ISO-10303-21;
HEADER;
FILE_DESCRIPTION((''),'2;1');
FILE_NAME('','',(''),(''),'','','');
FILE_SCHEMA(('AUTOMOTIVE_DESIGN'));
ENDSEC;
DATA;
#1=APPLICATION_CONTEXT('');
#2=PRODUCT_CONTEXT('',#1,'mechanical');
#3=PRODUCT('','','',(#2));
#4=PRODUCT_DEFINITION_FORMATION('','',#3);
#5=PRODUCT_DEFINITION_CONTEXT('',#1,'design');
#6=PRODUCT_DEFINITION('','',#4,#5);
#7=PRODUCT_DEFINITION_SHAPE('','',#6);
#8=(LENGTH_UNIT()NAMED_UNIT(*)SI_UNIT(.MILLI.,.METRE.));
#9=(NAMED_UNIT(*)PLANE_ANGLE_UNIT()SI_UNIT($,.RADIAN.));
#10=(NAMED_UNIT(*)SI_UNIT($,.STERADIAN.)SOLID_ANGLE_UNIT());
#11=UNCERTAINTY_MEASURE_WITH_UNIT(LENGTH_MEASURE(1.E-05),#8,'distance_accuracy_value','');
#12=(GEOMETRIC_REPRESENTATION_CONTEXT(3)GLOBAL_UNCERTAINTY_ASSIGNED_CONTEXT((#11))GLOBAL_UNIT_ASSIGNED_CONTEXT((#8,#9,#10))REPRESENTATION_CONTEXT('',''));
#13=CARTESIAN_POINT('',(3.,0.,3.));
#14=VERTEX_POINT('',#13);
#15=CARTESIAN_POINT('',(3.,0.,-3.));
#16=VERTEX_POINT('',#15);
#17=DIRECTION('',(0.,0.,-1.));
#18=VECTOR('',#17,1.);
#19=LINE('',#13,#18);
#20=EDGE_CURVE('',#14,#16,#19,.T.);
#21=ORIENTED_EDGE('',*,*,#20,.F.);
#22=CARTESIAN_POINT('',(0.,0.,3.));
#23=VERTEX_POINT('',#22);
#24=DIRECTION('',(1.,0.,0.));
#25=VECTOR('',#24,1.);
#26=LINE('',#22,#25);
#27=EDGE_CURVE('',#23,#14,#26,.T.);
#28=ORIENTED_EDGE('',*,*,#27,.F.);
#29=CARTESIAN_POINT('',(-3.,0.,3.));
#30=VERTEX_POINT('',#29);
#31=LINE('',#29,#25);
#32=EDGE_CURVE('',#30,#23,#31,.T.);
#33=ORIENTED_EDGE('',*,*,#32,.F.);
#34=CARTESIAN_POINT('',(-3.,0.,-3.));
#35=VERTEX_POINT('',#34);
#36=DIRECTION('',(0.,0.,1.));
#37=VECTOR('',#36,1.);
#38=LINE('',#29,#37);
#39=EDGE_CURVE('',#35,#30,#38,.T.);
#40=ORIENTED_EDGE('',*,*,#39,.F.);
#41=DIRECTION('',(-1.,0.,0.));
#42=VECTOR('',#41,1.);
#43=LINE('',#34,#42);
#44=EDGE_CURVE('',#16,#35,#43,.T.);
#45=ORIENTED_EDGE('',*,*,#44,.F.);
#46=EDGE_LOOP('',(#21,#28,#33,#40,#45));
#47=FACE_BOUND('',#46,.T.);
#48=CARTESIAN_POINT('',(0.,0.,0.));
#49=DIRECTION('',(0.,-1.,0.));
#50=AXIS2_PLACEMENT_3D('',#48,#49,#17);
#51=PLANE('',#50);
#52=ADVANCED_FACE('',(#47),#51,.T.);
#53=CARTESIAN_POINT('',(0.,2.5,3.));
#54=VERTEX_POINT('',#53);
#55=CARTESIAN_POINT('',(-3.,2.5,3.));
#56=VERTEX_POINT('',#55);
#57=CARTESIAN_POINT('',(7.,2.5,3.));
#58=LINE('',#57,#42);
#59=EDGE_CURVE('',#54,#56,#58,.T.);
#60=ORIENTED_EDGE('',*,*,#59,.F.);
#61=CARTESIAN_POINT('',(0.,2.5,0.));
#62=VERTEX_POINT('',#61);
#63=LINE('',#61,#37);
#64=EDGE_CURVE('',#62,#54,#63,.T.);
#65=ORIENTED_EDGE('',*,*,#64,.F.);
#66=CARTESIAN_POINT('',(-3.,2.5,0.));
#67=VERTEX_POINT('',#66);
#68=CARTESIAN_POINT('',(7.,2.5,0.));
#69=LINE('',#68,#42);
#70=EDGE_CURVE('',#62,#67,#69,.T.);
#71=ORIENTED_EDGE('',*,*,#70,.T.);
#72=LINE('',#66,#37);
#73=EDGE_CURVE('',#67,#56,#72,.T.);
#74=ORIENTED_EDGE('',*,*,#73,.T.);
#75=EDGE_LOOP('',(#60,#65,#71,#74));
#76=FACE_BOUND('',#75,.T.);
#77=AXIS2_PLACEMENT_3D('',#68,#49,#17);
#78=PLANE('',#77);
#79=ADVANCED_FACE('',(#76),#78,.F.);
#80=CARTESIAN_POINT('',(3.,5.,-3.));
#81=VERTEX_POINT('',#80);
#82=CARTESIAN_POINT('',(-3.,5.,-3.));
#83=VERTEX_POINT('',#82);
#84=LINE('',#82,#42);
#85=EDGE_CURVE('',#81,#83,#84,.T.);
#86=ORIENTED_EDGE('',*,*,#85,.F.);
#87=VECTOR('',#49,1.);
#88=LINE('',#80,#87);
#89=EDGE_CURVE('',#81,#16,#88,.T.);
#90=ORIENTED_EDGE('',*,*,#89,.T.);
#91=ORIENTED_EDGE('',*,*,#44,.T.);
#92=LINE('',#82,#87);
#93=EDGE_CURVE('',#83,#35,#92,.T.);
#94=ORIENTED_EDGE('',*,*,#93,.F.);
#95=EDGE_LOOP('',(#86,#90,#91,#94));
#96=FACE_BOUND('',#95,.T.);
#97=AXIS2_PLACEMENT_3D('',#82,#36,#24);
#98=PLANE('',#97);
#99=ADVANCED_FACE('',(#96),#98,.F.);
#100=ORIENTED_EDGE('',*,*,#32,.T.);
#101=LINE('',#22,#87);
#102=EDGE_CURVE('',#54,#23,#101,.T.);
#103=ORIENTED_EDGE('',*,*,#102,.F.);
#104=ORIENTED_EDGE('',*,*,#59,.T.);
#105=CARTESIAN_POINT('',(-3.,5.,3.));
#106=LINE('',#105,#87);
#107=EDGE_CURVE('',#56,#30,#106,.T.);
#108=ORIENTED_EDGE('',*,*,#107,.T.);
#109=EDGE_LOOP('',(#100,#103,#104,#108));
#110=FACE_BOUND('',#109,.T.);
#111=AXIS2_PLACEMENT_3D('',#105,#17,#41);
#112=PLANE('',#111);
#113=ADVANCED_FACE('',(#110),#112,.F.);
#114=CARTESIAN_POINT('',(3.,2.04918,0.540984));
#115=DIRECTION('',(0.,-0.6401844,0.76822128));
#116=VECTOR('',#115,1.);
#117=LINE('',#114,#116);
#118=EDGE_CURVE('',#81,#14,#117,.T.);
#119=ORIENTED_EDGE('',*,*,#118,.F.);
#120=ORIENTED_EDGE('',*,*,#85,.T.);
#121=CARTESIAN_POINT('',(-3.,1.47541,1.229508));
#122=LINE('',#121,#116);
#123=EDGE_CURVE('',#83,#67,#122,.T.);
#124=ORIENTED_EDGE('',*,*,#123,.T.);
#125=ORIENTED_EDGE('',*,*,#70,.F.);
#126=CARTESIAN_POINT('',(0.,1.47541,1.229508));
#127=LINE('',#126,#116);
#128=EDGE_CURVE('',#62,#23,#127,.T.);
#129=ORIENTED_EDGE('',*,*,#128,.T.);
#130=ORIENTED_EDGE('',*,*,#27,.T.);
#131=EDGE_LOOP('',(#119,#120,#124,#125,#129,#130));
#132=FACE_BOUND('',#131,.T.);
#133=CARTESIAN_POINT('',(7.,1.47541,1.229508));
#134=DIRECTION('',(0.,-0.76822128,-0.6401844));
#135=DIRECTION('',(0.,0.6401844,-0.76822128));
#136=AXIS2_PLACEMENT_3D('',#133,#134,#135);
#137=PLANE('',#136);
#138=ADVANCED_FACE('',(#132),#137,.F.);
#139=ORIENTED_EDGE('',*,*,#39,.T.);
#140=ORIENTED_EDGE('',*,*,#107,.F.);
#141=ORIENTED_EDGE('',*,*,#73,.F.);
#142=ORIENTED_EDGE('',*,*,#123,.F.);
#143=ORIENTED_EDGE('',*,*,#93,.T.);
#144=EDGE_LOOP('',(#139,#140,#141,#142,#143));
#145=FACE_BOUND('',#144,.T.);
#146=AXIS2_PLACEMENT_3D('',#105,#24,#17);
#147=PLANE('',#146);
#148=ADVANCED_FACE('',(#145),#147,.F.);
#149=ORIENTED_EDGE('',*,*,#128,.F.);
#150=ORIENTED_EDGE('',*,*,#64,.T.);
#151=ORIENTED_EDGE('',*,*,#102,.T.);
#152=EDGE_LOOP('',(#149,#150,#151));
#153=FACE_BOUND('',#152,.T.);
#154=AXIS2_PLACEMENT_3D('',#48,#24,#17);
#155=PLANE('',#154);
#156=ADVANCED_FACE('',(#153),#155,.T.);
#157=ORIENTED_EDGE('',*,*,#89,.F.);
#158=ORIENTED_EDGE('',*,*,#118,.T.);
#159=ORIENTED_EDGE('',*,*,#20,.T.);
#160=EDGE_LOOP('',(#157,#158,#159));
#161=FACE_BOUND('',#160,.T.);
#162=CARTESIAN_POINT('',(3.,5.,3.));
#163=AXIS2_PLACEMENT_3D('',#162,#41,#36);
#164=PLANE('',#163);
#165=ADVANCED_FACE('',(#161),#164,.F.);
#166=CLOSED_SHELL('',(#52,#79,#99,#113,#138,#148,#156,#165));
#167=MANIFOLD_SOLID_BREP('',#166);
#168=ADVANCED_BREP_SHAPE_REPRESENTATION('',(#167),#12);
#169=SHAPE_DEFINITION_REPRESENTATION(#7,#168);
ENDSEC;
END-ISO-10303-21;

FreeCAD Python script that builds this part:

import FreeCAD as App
import Part
import Sketcher


def add_polygon(sketch, points):
    """Adds a closed chain of lines whose ends are joined by coincident constraints."""
    first, n = sketch.GeometryCount, len(points)
    for a, b in zip(points, points[1:] + points[:1]):
        sketch.addGeometry(Part.LineSegment(App.Vector(*a, 0), App.Vector(*b, 0)), False)
    for i in range(n):
        sketch.addConstraint(Sketcher.Constraint("Coincident", first + i, 2, first + (i + 1) % n, 1))

doc = App.newDocument("Part")
params = doc.addObject("Spreadsheet::Sheet", "Params")
for row, (alias, value) in enumerate([
    ("sketch1_width", "6 mm"),
    ("pad1_length", "5 mm"),
    ("sketch2_height", "6 mm"),
    ("sketch2_height2", "3 mm"),
    ("sketch2_width", "2.5 mm"),
    ("pocket1_length", "10 mm"),
    ("sketch3_height", "3 mm"),
    ("sketch3_width", "2.5 mm"),
    ("pocket2_length", "3 mm"),
], start=1):
    params.set(f"A{row}", alias)
    params.set(f"B{row}", "=" + value)
    params.setAlias(f"B{row}", alias)

body = doc.addObject("PartDesign::Body", "Body")

sketch1 = body.newObject("Sketcher::SketchObject", "Sketch")
sketch1.AttachmentSupport = (doc.getObject("XZ_Plane"), [""])
sketch1.MapMode = "FlatFace"
add_polygon(sketch1, [(-3, -3), (-3, 3), (3, 3), (3, -3)])
sketch1.addConstraint(Sketcher.Constraint("Vertical", 0))
sketch1.addConstraint(Sketcher.Constraint("Horizontal", 1))
sketch1.addConstraint(Sketcher.Constraint("Vertical", 2))
sketch1.addConstraint(Sketcher.Constraint("Horizontal", 3))
sketch1.addConstraint(Sketcher.Constraint("Symmetric", 0, 2, 2, 2, -1, 1))
sketch1.addConstraint(Sketcher.Constraint("Equal", 3, 0))
sketch1.addConstraint(Sketcher.Constraint("DistanceX", 1, 1, 1, 2, 6.0))
sketch1.setExpression("Constraints[10]", "Params.sketch1_width")
pad1 = body.newObject("PartDesign::Pad", "Pad")
pad1.Profile = sketch1
pad1.setExpression("Length", "Params.pad1_length")
pad1.Reversed = True

sketch2 = body.newObject("Sketcher::SketchObject", "Sketch001")
sketch2.AttachmentSupport = (doc.getObject("YZ_Plane"), [""])
sketch2.MapMode = "FlatFace"
sketch2.AttachmentOffset = App.Placement(App.Vector(0, 0, -3), App.Rotation())
add_polygon(sketch2, [(5, 3), (5, -3), (2.5, 0), (2.5, 3)])
sketch2.addConstraint(Sketcher.Constraint("Vertical", 0))
sketch2.addConstraint(Sketcher.Constraint("Vertical", 2))
sketch2.addConstraint(Sketcher.Constraint("Horizontal", 3))
sketch2.addConstraint(Sketcher.Constraint("PointOnObject", 1, 2, -1))
sketch2.addConstraint(Sketcher.Constraint("DistanceY", 0, 2, 0, 1, 6.0))
sketch2.addConstraint(Sketcher.Constraint("DistanceY", 2, 1, 2, 2, 3.0))
sketch2.addConstraint(Sketcher.Constraint("DistanceX", 3, 1, 3, 2, 2.5))
sketch2.addConstraint(Sketcher.Constraint("DistanceX", -1, 1, 0, 2, 5.0))
sketch2.setExpression("Constraints[8]", "Params.sketch2_height")
sketch2.setExpression("Constraints[9]", "Params.sketch2_height2")
sketch2.setExpression("Constraints[10]", "Params.sketch2_width")
pocket1 = body.newObject("PartDesign::Pocket", "Pocket")
pocket1.Profile = sketch2
pocket1.setExpression("Length", "Params.pocket1_length")
pocket1.Reversed = True

sketch3 = body.newObject("Sketcher::SketchObject", "Sketch002")
sketch3.AttachmentSupport = (doc.getObject("YZ_Plane"), [""])
sketch3.MapMode = "FlatFace"
sketch3.AttachmentOffset = App.Placement(App.Vector(0, 0, 3), App.Rotation())
add_polygon(sketch3, [(0, 3), (2.5, 0), (2.5, 3)])
sketch3.addConstraint(Sketcher.Constraint("Vertical", 1))
sketch3.addConstraint(Sketcher.Constraint("Horizontal", 2))
sketch3.addConstraint(Sketcher.Constraint("PointOnObject", 0, 2, -1))
sketch3.addConstraint(Sketcher.Constraint("PointOnObject", 2, 2, -2))
sketch3.addConstraint(Sketcher.Constraint("DistanceY", 1, 1, 1, 2, 3.0))
sketch3.addConstraint(Sketcher.Constraint("DistanceX", 2, 2, 2, 1, 2.5))
sketch3.setExpression("Constraints[7]", "Params.sketch3_height")
sketch3.setExpression("Constraints[8]", "Params.sketch3_width")
pocket2 = body.newObject("PartDesign::Pocket", "Pocket001")
pocket2.Profile = sketch3
pocket2.setExpression("Length", "Params.pocket2_length")

doc.recompute()
